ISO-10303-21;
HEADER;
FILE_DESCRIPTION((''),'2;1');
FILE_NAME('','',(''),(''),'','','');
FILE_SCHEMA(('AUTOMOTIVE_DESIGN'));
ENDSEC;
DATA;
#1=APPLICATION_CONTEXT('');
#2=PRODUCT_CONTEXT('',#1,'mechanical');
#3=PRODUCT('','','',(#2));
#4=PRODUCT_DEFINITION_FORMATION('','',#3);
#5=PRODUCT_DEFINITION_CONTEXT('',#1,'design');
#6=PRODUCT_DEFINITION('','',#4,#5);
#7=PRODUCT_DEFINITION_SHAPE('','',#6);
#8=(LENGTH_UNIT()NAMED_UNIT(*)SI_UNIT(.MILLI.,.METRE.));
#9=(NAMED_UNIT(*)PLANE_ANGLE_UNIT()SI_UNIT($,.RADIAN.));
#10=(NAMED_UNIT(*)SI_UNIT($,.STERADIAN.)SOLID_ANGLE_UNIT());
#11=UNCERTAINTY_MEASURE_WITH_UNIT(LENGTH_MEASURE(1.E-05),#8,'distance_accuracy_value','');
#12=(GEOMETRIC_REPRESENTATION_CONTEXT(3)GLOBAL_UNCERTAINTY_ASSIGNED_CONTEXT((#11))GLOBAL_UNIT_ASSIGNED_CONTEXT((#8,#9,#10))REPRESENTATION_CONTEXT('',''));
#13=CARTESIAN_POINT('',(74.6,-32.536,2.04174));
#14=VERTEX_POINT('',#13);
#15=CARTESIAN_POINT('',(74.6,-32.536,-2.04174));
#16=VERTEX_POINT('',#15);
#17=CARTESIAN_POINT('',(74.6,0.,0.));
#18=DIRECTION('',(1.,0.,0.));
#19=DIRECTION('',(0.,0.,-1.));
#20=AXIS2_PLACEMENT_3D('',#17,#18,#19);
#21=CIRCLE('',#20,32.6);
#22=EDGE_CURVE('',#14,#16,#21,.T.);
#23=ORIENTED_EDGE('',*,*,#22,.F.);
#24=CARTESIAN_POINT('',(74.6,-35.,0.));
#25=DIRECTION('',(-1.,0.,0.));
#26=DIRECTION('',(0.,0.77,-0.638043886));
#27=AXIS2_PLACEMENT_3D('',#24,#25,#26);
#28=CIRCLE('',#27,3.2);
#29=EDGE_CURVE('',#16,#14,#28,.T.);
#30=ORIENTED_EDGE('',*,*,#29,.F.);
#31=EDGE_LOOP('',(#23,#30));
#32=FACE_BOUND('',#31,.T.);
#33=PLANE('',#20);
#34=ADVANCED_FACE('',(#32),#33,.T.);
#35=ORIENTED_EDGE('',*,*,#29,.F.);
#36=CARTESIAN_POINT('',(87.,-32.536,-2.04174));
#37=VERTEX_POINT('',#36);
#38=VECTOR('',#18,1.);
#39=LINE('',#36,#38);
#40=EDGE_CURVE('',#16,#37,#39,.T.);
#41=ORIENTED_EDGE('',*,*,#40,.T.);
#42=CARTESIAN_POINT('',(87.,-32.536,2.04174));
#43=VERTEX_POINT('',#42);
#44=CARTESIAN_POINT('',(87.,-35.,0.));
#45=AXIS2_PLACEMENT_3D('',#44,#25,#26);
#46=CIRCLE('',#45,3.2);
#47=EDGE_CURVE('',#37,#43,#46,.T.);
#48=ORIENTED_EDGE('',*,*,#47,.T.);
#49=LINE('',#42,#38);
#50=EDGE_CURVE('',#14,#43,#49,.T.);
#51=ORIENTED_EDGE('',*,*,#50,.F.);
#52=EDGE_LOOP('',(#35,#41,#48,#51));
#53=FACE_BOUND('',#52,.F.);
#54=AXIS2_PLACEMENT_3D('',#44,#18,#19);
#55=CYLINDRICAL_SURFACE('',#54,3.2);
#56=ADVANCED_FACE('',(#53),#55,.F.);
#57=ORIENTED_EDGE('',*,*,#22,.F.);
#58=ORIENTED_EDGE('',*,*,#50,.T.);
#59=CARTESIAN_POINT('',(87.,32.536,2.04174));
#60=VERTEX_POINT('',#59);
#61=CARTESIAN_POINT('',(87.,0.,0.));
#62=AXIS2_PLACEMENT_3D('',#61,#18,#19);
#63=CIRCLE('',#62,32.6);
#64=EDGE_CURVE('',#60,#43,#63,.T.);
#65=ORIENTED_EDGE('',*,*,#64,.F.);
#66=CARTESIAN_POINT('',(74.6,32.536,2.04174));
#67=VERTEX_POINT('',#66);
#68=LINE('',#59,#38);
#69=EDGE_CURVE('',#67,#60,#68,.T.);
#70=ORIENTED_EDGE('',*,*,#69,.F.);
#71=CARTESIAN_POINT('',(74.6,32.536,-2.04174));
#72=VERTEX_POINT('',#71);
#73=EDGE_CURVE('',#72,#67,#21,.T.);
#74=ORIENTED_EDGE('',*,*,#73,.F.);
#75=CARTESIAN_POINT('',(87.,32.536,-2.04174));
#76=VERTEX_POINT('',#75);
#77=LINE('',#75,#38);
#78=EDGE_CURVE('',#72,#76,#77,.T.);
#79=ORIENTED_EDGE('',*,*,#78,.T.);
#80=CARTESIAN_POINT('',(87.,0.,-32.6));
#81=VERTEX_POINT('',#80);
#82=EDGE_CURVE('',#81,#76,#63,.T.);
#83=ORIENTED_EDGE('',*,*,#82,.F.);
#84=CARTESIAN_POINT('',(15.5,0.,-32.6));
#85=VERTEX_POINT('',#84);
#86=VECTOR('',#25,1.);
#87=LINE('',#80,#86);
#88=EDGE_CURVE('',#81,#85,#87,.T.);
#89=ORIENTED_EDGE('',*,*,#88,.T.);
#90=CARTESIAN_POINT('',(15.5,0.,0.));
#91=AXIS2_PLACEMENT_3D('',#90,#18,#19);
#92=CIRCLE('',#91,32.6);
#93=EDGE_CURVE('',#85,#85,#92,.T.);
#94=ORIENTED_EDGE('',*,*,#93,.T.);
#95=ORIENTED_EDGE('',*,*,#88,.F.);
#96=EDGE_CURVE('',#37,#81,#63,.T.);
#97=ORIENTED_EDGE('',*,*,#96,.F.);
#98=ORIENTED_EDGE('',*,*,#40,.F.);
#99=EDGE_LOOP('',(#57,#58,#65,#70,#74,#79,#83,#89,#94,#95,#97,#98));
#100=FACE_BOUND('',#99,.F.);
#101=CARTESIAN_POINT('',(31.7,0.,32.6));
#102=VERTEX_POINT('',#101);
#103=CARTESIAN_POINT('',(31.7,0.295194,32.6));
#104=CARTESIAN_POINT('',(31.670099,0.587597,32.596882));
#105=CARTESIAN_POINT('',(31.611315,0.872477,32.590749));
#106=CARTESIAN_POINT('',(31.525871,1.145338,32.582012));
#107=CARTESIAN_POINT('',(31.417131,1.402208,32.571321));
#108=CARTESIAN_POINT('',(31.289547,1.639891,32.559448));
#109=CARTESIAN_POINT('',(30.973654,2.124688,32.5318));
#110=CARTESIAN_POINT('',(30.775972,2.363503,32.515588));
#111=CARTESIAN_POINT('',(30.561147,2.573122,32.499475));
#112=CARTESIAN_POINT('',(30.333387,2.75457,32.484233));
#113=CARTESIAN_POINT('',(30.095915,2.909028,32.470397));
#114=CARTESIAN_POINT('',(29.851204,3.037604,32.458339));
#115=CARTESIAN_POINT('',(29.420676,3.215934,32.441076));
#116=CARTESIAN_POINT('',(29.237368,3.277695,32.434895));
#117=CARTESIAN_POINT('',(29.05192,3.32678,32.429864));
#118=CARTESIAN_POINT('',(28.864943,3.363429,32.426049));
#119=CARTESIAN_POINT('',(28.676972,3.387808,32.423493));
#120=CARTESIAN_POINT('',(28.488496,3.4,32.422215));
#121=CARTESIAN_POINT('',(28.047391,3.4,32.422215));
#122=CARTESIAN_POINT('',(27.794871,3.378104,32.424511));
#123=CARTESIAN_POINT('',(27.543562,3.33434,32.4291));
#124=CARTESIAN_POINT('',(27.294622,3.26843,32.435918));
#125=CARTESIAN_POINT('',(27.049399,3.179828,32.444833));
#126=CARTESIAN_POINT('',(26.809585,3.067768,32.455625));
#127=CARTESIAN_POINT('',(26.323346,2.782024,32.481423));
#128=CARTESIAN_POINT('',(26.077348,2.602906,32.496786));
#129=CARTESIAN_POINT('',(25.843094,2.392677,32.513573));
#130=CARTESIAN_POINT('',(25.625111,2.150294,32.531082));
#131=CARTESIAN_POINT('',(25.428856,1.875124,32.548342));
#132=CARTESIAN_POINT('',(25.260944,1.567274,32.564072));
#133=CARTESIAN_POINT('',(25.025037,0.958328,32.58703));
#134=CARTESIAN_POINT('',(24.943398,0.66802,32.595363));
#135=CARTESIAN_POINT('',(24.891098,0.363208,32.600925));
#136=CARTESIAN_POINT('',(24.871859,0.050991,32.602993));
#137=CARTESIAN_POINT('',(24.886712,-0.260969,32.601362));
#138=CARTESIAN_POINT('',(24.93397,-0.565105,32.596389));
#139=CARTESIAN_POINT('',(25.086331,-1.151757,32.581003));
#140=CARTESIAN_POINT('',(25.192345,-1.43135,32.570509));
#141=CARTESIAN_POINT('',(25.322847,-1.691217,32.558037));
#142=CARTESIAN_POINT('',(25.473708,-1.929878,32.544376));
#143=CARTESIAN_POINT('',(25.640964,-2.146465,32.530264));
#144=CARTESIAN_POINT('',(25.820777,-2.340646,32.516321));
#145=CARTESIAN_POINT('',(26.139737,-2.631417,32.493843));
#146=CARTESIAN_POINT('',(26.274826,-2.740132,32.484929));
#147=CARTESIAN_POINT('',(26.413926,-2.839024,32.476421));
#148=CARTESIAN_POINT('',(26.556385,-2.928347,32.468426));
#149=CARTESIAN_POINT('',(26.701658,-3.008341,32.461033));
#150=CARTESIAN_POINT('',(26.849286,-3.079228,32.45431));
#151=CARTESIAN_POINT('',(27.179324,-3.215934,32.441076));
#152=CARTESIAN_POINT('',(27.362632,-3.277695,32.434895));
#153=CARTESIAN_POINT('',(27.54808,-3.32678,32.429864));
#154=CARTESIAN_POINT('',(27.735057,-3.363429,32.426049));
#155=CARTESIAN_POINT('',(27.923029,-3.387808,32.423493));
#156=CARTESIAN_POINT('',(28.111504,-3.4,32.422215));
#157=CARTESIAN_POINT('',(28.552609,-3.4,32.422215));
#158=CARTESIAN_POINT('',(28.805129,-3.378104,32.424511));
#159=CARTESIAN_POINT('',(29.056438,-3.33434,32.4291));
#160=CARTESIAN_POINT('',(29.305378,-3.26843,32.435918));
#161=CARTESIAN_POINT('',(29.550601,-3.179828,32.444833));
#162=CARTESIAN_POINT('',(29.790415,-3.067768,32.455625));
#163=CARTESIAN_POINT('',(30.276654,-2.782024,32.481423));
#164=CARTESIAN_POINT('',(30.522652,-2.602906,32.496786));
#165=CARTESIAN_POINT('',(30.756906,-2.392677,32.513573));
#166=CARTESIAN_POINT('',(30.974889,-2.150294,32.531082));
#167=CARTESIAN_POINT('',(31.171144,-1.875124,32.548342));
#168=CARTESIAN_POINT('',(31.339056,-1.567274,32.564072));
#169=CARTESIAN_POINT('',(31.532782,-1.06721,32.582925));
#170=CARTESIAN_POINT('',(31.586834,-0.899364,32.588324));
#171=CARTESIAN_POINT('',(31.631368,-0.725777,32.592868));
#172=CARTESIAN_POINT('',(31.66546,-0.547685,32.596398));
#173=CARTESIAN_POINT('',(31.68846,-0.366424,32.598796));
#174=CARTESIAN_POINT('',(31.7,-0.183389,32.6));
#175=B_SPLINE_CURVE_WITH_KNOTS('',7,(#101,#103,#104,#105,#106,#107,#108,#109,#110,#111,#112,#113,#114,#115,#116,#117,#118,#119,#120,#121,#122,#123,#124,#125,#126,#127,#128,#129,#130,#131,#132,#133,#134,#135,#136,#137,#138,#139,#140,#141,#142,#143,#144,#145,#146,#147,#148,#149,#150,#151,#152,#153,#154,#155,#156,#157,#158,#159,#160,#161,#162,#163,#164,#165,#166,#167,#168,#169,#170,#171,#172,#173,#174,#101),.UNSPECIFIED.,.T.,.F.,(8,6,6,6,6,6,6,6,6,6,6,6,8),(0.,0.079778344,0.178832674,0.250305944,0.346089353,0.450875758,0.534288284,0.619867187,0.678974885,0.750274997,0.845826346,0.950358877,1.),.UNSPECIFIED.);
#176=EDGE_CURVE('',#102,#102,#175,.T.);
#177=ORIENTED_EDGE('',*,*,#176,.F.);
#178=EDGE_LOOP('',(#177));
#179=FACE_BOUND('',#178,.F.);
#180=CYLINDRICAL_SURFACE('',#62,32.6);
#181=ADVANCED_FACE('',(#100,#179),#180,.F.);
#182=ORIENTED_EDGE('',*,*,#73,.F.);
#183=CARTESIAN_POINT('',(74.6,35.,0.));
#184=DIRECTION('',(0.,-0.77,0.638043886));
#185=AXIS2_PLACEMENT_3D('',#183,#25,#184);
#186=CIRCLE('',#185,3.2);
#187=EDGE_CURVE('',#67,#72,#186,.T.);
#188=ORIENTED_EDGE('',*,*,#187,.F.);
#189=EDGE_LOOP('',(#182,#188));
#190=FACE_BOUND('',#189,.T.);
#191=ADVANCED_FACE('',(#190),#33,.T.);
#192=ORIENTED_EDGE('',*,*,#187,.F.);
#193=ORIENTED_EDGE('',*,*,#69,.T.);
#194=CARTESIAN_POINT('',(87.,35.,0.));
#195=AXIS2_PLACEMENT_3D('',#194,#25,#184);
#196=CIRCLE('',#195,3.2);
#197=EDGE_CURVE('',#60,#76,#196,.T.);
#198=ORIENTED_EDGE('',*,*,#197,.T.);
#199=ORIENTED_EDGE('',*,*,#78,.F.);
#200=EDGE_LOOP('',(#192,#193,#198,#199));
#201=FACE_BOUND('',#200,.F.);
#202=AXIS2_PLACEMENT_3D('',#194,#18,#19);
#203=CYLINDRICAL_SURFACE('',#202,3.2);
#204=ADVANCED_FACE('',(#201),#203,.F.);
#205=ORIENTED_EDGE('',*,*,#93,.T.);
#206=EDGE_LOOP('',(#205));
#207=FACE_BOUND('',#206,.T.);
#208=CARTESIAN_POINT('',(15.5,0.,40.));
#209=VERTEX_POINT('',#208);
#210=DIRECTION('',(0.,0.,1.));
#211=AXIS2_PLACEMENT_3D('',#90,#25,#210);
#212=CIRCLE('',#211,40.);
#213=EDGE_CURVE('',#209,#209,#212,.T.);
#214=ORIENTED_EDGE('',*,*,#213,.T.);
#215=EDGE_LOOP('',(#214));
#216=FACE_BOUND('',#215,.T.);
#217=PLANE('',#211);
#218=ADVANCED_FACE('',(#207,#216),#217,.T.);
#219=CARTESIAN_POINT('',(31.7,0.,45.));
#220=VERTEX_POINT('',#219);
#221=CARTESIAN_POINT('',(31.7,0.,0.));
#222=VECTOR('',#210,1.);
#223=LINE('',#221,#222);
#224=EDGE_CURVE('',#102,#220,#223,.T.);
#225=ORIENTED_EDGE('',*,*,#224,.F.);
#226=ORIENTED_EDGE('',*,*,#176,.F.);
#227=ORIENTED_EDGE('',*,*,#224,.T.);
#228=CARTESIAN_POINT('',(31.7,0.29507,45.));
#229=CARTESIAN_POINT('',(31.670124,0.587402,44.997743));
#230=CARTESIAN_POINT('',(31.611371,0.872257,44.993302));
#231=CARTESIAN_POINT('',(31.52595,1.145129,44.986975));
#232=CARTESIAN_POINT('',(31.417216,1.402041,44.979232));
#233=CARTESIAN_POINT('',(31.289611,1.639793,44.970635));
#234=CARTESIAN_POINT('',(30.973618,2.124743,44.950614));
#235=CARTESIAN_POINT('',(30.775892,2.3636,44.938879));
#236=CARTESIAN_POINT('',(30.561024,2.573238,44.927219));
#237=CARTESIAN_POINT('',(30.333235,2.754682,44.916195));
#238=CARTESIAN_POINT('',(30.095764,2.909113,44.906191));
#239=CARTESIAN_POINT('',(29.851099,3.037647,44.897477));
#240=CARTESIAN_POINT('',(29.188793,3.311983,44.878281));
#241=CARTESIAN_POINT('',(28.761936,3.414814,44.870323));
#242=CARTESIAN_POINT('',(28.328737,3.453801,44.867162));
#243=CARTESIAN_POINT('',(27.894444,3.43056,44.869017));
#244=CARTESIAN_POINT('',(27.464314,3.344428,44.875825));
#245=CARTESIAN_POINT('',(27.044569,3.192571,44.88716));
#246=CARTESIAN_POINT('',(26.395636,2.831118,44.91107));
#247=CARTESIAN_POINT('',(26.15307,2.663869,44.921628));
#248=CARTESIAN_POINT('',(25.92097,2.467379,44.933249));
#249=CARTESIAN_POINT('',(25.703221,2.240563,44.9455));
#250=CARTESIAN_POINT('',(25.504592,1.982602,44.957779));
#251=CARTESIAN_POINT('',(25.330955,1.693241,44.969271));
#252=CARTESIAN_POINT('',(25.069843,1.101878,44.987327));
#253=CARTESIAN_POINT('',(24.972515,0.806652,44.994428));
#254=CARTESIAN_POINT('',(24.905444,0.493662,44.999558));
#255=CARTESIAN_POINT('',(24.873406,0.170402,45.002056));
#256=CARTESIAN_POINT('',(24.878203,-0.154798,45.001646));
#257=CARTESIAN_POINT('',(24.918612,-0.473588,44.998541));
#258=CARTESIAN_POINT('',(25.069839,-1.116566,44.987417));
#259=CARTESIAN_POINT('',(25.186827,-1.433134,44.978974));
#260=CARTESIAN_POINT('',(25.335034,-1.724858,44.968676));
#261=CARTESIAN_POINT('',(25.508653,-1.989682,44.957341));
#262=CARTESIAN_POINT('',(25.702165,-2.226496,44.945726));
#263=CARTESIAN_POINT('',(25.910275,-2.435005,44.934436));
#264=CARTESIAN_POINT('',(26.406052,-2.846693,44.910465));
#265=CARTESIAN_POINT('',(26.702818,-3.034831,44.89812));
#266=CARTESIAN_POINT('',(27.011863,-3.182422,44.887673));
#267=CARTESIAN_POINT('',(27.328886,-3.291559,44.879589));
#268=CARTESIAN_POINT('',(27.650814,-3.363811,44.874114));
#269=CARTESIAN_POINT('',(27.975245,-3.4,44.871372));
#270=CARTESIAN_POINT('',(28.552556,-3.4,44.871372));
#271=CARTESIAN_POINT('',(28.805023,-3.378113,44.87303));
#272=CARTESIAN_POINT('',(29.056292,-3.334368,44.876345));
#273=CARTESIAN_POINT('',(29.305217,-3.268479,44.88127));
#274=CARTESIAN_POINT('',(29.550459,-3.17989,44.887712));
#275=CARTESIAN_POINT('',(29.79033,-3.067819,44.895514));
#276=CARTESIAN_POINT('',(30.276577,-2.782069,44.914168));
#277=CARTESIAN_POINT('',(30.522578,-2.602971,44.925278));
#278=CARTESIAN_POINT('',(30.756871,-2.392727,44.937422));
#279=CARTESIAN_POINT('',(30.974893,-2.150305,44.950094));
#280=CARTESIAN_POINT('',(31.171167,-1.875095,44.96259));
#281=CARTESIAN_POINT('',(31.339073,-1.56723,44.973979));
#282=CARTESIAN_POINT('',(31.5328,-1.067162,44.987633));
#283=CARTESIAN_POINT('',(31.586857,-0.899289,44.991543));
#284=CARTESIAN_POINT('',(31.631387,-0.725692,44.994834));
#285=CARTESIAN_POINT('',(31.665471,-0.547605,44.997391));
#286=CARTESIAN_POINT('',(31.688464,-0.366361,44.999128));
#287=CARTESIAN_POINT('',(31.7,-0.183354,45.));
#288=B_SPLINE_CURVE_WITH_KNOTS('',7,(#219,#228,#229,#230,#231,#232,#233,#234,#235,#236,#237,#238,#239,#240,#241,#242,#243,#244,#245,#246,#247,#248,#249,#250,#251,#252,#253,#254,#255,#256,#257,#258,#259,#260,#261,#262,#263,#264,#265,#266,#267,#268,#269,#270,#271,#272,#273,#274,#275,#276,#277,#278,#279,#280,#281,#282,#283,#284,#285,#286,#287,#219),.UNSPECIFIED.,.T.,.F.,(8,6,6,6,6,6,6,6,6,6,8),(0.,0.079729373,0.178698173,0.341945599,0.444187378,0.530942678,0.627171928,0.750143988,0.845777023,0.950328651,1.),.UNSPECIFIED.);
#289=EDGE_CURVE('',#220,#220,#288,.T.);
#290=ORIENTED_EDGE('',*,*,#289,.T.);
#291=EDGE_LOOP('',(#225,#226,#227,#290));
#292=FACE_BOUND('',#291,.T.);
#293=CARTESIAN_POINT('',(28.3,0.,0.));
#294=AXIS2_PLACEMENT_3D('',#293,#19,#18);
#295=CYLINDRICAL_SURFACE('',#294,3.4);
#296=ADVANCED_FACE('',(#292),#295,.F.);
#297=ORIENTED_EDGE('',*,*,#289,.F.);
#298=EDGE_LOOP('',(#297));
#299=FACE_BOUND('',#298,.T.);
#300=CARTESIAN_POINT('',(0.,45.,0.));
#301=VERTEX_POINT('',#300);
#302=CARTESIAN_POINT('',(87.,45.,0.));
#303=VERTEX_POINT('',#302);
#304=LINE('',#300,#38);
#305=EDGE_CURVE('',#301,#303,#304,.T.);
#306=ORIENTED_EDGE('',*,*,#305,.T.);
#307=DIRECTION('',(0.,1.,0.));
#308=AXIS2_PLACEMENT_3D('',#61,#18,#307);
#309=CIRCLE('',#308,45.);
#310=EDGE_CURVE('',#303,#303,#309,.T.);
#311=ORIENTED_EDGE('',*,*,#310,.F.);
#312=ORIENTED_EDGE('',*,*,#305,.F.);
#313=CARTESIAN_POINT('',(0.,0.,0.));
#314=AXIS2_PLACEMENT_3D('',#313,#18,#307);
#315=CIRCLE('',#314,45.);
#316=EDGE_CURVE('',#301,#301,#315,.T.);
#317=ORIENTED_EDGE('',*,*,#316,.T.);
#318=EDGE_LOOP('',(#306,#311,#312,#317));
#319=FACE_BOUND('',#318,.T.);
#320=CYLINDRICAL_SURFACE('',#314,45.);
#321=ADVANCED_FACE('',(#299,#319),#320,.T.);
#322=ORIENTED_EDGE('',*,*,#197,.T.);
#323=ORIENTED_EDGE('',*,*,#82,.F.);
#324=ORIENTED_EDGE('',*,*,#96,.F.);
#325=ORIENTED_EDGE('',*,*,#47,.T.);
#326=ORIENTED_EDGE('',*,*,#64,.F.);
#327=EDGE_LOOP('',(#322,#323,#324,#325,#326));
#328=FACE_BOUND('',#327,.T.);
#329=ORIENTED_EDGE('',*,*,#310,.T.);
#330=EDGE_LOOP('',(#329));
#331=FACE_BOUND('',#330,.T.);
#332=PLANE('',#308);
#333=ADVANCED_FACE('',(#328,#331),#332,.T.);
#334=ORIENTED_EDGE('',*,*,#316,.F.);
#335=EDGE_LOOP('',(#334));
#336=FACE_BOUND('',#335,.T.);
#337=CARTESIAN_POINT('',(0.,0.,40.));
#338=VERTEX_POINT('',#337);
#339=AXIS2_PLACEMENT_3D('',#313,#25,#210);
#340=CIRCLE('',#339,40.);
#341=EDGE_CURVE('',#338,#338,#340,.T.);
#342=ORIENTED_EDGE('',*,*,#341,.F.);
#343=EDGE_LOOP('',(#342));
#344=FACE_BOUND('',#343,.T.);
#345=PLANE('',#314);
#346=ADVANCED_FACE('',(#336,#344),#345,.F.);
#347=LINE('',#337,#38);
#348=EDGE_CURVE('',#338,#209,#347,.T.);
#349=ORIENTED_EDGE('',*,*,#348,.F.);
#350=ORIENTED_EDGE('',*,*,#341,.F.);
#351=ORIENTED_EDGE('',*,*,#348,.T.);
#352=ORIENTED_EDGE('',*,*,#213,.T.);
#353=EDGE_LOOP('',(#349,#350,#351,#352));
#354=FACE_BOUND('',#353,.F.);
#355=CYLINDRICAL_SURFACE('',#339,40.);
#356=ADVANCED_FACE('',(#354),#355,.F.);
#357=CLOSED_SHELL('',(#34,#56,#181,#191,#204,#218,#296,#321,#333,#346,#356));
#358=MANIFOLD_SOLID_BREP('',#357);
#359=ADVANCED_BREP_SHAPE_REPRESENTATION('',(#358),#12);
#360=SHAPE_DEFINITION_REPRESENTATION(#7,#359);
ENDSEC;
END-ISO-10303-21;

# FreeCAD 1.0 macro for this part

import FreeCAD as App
import Part
import Sketcher
from FreeCAD import Vector

doc = App.newDocument("Part")
body = doc.addObject("PartDesign::Body", "Body")

# Sketch on XY plane
sketch1 = body.newObject("Sketcher::SketchObject", "Sketch")
sketch1.AttachmentSupport = (doc.getObject("XY_Plane"), [""])
sketch1.MapMode = "FlatFace"
sketch1.addGeometry([
    Part.LineSegment(Vector(0, 45, 0), Vector(0, 0, 0)),
    Part.LineSegment(Vector(0, 0, 0), Vector(87, 0, 0)),
    Part.LineSegment(Vector(87, 0, 0), Vector(87, 45, 0)),
    Part.LineSegment(Vector(87, 45, 0), Vector(0, 45, 0)),
], False)
sketch1.addConstraint([
    Sketcher.Constraint("Coincident", 0, 2, 1, 1),
    Sketcher.Constraint("Coincident", 1, 2, 2, 1),
    Sketcher.Constraint("Coincident", 2, 2, 3, 1),
    Sketcher.Constraint("Coincident", 3, 2, 0, 1),
    Sketcher.Constraint("Vertical", 0),
    Sketcher.Constraint("Horizontal", 1),
    Sketcher.Constraint("Vertical", 2),
    Sketcher.Constraint("Horizontal", 3),
    Sketcher.Constraint("Coincident", 0, 2, -1, 1),
    Sketcher.Constraint("DistanceX", 1, 1, 1, 2, 87.0),
    Sketcher.Constraint("DistanceY", 0, 2, 0, 1, 45.0),
])
revolution = body.newObject("PartDesign::Revolution", "Revolution")
revolution.Profile = sketch1
revolution.ReferenceAxis = (sketch1, ["H_Axis"])
revolution.Angle = 360

# Sketch on YZ plane
sketch2 = body.newObject("Sketcher::SketchObject", "Sketch001")
sketch2.AttachmentSupport = (doc.getObject("YZ_Plane"), [""])
sketch2.MapMode = "FlatFace"
sketch2.AttachmentOffset = App.Placement(Vector(0, 0, 87), App.Rotation())
sketch2.addGeometry(Part.Circle(Vector(0, 0, 0), Vector(0, 0, 1), 33), False)
sketch2.addConstraint([
    Sketcher.Constraint("Coincident", 0, 3, -1, 1),
    Sketcher.Constraint("Diameter", 0, 65.2),
])
pocket1 = body.newObject("PartDesign::Pocket", "Pocket")
pocket1.Profile = sketch2
pocket1.Type = "ThroughAll"

# Sketch on YZ plane
sketch3 = body.newObject("Sketcher::SketchObject", "Sketch002")
sketch3.AttachmentSupport = (doc.getObject("YZ_Plane"), [""])
sketch3.MapMode = "FlatFace"
sketch3.addGeometry(Part.Circle(Vector(0, 0, 0), Vector(0, 0, 1), 40), False)
sketch3.addConstraint([
    Sketcher.Constraint("Coincident", 0, 3, -1, 1),
    Sketcher.Constraint("Diameter", 0, 80.0),
])
pocket2 = body.newObject("PartDesign::Pocket", "Pocket001")
pocket2.Profile = sketch3
pocket2.Length = 15.5
pocket2.Reversed = True

# Sketch on YZ plane
sketch4 = body.newObject("Sketcher::SketchObject", "Sketch003")
sketch4.AttachmentSupport = (doc.getObject("YZ_Plane"), [""])
sketch4.MapMode = "FlatFace"
sketch4.AttachmentOffset = App.Placement(Vector(0, 0, 87), App.Rotation())
sketch4.addGeometry([
    Part.Circle(Vector(35, 0, 0), Vector(0, 0, 1), 3.2),
    Part.Circle(Vector(-35, 0, 0), Vector(0, 0, 1), 3.2),
], False)
sketch4.addConstraint([
    Sketcher.Constraint("Equal", 0, 1),
    Sketcher.Constraint("Symmetric", 0, 3, 1, 3, -1, 1),
    Sketcher.Constraint("PointOnObject", 0, 3, -1),
    Sketcher.Constraint("Diameter", 0, 6.4),
    Sketcher.Constraint("DistanceX", -1, 1, 0, 3, 35.0),
])
pocket3 = body.newObject("PartDesign::Pocket", "Pocket002")
pocket3.Profile = sketch4
pocket3.Length = 12.4

# Sketch on XY plane
sketch5 = body.newObject("Sketcher::SketchObject", "Sketch004")
sketch5.AttachmentSupport = (doc.getObject("XY_Plane"), [""])
sketch5.MapMode = "FlatFace"
sketch5.addGeometry(Part.Circle(Vector(28.3, 0, 0), Vector(0, 0, 1), 3.4), False)
sketch5.addConstraint([
    Sketcher.Constraint("PointOnObject", 0, 3, -1),
    Sketcher.Constraint("Diameter", 0, 6.8),
    Sketcher.Constraint("DistanceX", -1, 1, 0, 3, 28.3),
])
pocket4 = body.newObject("PartDesign::Pocket", "Pocket003")
pocket4.Profile = sketch5
pocket4.Type = "ThroughAll"
pocket4.Reversed = True

doc.recompute()
